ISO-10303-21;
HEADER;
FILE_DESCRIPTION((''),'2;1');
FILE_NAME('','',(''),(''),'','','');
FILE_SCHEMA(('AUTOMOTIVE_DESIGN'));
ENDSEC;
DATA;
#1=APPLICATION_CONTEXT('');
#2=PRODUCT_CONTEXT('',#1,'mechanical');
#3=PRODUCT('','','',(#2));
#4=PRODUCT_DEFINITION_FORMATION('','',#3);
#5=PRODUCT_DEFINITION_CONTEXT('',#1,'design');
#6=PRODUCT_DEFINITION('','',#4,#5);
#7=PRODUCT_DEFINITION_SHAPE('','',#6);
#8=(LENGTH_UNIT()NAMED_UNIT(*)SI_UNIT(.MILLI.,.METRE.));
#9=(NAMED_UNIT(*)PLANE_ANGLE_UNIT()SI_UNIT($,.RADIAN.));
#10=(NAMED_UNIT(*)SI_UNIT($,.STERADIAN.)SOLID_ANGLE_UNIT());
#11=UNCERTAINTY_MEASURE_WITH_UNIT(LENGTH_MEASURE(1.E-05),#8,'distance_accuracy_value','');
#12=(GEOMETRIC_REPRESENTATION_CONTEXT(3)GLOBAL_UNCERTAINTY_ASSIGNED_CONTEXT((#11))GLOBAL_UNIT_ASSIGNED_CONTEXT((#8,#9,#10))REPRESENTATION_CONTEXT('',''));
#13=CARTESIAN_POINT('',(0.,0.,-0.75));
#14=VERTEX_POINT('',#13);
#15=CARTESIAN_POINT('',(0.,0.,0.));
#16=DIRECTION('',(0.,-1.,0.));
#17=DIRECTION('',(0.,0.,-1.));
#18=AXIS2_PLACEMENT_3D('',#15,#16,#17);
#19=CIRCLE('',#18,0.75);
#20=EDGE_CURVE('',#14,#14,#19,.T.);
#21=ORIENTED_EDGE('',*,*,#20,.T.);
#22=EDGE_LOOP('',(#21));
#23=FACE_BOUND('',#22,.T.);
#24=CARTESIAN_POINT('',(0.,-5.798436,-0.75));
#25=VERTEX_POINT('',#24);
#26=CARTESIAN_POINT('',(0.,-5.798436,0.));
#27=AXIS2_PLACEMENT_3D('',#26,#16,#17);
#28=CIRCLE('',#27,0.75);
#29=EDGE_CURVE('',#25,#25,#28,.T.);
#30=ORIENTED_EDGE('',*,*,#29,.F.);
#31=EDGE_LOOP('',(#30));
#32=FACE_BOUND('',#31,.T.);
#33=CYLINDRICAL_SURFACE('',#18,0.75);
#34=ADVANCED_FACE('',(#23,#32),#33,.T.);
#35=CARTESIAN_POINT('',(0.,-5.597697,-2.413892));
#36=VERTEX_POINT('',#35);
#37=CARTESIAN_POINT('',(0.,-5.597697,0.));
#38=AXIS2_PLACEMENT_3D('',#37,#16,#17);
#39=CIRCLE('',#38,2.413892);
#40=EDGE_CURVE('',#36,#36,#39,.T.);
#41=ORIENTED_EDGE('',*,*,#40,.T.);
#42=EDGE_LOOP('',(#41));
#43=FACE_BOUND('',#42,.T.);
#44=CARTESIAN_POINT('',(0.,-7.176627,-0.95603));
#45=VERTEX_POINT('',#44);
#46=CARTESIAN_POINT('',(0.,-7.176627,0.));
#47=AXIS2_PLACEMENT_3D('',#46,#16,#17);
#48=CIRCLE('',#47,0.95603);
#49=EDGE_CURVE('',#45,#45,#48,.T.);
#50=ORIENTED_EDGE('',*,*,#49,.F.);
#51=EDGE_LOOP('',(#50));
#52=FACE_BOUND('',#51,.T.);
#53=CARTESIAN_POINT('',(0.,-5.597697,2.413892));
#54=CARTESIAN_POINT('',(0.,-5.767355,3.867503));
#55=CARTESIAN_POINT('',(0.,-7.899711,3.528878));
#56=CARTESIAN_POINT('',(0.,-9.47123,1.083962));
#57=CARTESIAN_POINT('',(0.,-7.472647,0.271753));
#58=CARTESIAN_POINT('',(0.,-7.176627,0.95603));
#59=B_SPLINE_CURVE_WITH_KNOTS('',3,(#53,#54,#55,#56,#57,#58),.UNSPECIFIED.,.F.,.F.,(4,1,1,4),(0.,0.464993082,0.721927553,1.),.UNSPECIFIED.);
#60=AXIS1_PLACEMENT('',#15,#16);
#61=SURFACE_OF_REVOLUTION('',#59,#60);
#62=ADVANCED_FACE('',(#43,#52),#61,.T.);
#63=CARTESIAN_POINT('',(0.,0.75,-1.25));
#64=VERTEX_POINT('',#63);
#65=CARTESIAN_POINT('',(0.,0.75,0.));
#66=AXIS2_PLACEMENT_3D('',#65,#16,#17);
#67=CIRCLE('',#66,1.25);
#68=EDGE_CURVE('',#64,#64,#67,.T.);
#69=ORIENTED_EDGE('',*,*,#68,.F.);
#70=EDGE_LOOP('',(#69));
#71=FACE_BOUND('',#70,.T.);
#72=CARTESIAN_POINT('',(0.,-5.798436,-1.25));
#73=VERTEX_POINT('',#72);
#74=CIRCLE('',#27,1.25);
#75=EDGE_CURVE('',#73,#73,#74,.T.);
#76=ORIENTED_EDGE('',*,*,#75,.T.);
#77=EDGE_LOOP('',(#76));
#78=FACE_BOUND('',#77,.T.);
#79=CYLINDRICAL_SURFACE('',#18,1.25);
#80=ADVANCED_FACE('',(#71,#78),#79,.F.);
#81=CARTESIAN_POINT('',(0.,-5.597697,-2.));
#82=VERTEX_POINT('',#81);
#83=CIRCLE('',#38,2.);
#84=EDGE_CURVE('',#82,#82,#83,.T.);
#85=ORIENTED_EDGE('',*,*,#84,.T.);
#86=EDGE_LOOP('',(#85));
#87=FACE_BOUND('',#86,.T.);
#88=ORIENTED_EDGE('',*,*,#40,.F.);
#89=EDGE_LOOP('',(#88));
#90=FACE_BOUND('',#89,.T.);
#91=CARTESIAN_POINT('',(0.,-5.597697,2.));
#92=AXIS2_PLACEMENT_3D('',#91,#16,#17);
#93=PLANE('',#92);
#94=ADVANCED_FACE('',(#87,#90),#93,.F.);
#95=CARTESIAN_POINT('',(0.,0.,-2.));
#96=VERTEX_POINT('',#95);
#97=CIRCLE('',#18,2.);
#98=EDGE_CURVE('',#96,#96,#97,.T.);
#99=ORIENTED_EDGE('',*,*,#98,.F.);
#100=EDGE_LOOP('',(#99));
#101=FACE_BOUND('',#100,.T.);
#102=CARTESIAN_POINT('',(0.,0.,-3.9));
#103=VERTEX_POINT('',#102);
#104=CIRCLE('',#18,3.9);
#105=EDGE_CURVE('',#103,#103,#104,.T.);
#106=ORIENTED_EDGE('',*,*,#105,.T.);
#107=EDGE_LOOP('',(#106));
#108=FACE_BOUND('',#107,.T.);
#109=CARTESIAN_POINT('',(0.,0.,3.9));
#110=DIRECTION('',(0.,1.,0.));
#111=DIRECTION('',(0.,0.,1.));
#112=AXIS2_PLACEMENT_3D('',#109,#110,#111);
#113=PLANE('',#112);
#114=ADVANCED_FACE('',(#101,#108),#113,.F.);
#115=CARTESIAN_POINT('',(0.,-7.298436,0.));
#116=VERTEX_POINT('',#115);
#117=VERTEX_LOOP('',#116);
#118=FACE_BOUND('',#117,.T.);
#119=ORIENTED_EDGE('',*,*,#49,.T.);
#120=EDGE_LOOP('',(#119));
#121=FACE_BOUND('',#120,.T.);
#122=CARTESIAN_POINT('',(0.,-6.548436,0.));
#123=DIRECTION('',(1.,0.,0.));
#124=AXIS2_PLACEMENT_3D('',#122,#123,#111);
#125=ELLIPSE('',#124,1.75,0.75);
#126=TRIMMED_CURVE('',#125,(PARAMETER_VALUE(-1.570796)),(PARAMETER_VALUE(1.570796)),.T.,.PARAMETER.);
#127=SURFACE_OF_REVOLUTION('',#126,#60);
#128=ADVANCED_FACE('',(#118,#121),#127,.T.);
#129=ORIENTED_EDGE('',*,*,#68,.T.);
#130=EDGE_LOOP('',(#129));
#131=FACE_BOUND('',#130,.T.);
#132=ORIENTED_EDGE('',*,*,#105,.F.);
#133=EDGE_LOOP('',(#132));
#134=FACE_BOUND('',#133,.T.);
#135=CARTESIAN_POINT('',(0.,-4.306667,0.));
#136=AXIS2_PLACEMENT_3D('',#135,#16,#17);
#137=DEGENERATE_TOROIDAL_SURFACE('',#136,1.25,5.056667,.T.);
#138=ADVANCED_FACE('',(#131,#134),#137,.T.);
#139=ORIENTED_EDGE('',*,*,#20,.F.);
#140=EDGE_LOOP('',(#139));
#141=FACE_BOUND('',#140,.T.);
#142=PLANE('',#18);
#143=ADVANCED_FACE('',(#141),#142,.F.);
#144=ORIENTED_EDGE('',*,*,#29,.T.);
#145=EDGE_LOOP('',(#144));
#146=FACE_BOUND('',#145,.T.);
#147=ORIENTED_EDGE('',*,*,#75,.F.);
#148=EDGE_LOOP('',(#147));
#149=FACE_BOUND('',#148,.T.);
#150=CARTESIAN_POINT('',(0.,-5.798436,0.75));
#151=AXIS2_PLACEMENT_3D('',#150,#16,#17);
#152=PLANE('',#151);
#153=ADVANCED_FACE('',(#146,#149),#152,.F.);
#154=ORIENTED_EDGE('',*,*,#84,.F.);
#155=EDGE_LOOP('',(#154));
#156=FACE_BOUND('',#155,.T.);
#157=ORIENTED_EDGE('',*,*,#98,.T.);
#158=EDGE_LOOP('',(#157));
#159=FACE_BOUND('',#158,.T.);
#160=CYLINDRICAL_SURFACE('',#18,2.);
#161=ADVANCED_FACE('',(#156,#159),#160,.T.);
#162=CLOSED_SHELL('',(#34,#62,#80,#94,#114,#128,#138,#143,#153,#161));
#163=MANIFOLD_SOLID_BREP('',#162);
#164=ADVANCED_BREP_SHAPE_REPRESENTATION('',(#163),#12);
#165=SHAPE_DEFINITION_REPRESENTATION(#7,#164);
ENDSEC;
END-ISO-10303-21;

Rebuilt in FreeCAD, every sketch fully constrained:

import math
import FreeCAD as App
import Part
import Sketcher

doc = App.newDocument("Part")
body = doc.addObject("PartDesign::Body", "Body")

sketch1 = body.newObject("Sketcher::SketchObject", "Sketch")
sketch1.AttachmentSupport = (doc.getObject("YZ_Plane"), [""])
sketch1.MapMode = "FlatFace"
sketch1.addGeometry([
    Part.LineSegment(App.Vector(-7.298436, 0, 0), App.Vector(0, 0, 0)),
    Part.LineSegment(App.Vector(0, 0, 0), App.Vector(0, 0.75, 0)),
    Part.LineSegment(App.Vector(0, 0.75, 0), App.Vector(-5.798436, 0.75, 0)),
    Part.LineSegment(App.Vector(-5.798436, 0.75, 0), App.Vector(-5.798436, 1.25, 0)),
    Part.LineSegment(App.Vector(-5.798436, 1.25, 0), App.Vector(0.75, 1.25, 0)),
    Part.ArcOfCircle(Part.Circle(App.Vector(-4.306667, 1.25, 0), App.Vector(0, 0, 1), 5.056667), math.radians(0), math.radians(31.605028)),
    Part.LineSegment(App.Vector(0, 3.9, 0), App.Vector(0, 2, 0)),
    Part.LineSegment(App.Vector(0, 2, 0), App.Vector(-5.597697, 2, 0)),
    Part.LineSegment(App.Vector(-5.597697, 2, 0), App.Vector(-5.597697, 2.413892, 0)),
    Part.BSplineCurve([App.Vector(-5.597697, 2.413892, 0), App.Vector(-5.767355, 3.867503, 0), App.Vector(-7.899711, 3.528878, 0), App.Vector(-9.47123, 1.083962, 0), App.Vector(-7.472647, 0.271753, 0), App.Vector(-7.176627, 0.95603, 0)], [4, 1, 1, 4], [0, 0.464993082, 0.721927553, 1], False, 3, [1, 1, 1, 1, 1, 1], False),
    Part.BSplineCurve([App.Vector(-7.176627, 0.95603, 0), App.Vector(-7.298436, 0.520264, 0), App.Vector(-7.298436, 0, 0)], [3, 3], [0.992852221, 1.570796327], False, 2, [1, 0.958537313, 1], False),
], False)
sketch1.addConstraint([
    Sketcher.Constraint("Block", 9),
    Sketcher.Constraint("Block", 10),
    Sketcher.Constraint("Coincident", 0, 2, 1, 1),
    Sketcher.Constraint("Coincident", 1, 2, 2, 1),
    Sketcher.Constraint("Coincident", 2, 2, 3, 1),
    Sketcher.Constraint("Coincident", 3, 2, 4, 1),
    Sketcher.Constraint("Coincident", 4, 2, 5, 1),
    Sketcher.Constraint("Coincident", 5, 2, 6, 1),
    Sketcher.Constraint("Coincident", 6, 2, 7, 1),
    Sketcher.Constraint("Coincident", 7, 2, 8, 1),
    Sketcher.Constraint("Coincident", 8, 2, 9, 1),
    Sketcher.Constraint("Coincident", 10, 2, 0, 1),
    Sketcher.Constraint("Horizontal", 0),
    Sketcher.Constraint("Vertical", 1),
    Sketcher.Constraint("Horizontal", 2),
    Sketcher.Constraint("Vertical", 3),
    Sketcher.Constraint("Horizontal", 4),
    Sketcher.Constraint("Vertical", 6),
    Sketcher.Constraint("Horizontal", 7),
    Sketcher.Constraint("Vertical", 8),
    Sketcher.Constraint("PointOnObject", 1, 2, -2),
    Sketcher.Constraint("PointOnObject", 5, 2, -2),
    Sketcher.Constraint("Horizontal", 5, 3, 3, 2),
    Sketcher.Constraint("DistanceY", 3, 1, 3, 2, 0.5),
    Sketcher.Constraint("DistanceY", 6, 2, 6, 1, 1.9),
    Sketcher.Constraint("DistanceY", -1, 1, 6, 2, 2.0),
    Sketcher.Constraint("DistanceY", 1, 1, 1, 2, 0.75),
    Sketcher.Constraint("DistanceX", -1, 1, 4, 2, 0.75),
    Sketcher.Constraint("DistanceX", 2, 2, 2, 1, 5.798436),
])
revolution = body.newObject("PartDesign::Revolution", "Revolution")
revolution.Profile = sketch1
revolution.ReferenceAxis = (sketch1, ["H_Axis"])
revolution.Angle = 360

doc.recompute()
